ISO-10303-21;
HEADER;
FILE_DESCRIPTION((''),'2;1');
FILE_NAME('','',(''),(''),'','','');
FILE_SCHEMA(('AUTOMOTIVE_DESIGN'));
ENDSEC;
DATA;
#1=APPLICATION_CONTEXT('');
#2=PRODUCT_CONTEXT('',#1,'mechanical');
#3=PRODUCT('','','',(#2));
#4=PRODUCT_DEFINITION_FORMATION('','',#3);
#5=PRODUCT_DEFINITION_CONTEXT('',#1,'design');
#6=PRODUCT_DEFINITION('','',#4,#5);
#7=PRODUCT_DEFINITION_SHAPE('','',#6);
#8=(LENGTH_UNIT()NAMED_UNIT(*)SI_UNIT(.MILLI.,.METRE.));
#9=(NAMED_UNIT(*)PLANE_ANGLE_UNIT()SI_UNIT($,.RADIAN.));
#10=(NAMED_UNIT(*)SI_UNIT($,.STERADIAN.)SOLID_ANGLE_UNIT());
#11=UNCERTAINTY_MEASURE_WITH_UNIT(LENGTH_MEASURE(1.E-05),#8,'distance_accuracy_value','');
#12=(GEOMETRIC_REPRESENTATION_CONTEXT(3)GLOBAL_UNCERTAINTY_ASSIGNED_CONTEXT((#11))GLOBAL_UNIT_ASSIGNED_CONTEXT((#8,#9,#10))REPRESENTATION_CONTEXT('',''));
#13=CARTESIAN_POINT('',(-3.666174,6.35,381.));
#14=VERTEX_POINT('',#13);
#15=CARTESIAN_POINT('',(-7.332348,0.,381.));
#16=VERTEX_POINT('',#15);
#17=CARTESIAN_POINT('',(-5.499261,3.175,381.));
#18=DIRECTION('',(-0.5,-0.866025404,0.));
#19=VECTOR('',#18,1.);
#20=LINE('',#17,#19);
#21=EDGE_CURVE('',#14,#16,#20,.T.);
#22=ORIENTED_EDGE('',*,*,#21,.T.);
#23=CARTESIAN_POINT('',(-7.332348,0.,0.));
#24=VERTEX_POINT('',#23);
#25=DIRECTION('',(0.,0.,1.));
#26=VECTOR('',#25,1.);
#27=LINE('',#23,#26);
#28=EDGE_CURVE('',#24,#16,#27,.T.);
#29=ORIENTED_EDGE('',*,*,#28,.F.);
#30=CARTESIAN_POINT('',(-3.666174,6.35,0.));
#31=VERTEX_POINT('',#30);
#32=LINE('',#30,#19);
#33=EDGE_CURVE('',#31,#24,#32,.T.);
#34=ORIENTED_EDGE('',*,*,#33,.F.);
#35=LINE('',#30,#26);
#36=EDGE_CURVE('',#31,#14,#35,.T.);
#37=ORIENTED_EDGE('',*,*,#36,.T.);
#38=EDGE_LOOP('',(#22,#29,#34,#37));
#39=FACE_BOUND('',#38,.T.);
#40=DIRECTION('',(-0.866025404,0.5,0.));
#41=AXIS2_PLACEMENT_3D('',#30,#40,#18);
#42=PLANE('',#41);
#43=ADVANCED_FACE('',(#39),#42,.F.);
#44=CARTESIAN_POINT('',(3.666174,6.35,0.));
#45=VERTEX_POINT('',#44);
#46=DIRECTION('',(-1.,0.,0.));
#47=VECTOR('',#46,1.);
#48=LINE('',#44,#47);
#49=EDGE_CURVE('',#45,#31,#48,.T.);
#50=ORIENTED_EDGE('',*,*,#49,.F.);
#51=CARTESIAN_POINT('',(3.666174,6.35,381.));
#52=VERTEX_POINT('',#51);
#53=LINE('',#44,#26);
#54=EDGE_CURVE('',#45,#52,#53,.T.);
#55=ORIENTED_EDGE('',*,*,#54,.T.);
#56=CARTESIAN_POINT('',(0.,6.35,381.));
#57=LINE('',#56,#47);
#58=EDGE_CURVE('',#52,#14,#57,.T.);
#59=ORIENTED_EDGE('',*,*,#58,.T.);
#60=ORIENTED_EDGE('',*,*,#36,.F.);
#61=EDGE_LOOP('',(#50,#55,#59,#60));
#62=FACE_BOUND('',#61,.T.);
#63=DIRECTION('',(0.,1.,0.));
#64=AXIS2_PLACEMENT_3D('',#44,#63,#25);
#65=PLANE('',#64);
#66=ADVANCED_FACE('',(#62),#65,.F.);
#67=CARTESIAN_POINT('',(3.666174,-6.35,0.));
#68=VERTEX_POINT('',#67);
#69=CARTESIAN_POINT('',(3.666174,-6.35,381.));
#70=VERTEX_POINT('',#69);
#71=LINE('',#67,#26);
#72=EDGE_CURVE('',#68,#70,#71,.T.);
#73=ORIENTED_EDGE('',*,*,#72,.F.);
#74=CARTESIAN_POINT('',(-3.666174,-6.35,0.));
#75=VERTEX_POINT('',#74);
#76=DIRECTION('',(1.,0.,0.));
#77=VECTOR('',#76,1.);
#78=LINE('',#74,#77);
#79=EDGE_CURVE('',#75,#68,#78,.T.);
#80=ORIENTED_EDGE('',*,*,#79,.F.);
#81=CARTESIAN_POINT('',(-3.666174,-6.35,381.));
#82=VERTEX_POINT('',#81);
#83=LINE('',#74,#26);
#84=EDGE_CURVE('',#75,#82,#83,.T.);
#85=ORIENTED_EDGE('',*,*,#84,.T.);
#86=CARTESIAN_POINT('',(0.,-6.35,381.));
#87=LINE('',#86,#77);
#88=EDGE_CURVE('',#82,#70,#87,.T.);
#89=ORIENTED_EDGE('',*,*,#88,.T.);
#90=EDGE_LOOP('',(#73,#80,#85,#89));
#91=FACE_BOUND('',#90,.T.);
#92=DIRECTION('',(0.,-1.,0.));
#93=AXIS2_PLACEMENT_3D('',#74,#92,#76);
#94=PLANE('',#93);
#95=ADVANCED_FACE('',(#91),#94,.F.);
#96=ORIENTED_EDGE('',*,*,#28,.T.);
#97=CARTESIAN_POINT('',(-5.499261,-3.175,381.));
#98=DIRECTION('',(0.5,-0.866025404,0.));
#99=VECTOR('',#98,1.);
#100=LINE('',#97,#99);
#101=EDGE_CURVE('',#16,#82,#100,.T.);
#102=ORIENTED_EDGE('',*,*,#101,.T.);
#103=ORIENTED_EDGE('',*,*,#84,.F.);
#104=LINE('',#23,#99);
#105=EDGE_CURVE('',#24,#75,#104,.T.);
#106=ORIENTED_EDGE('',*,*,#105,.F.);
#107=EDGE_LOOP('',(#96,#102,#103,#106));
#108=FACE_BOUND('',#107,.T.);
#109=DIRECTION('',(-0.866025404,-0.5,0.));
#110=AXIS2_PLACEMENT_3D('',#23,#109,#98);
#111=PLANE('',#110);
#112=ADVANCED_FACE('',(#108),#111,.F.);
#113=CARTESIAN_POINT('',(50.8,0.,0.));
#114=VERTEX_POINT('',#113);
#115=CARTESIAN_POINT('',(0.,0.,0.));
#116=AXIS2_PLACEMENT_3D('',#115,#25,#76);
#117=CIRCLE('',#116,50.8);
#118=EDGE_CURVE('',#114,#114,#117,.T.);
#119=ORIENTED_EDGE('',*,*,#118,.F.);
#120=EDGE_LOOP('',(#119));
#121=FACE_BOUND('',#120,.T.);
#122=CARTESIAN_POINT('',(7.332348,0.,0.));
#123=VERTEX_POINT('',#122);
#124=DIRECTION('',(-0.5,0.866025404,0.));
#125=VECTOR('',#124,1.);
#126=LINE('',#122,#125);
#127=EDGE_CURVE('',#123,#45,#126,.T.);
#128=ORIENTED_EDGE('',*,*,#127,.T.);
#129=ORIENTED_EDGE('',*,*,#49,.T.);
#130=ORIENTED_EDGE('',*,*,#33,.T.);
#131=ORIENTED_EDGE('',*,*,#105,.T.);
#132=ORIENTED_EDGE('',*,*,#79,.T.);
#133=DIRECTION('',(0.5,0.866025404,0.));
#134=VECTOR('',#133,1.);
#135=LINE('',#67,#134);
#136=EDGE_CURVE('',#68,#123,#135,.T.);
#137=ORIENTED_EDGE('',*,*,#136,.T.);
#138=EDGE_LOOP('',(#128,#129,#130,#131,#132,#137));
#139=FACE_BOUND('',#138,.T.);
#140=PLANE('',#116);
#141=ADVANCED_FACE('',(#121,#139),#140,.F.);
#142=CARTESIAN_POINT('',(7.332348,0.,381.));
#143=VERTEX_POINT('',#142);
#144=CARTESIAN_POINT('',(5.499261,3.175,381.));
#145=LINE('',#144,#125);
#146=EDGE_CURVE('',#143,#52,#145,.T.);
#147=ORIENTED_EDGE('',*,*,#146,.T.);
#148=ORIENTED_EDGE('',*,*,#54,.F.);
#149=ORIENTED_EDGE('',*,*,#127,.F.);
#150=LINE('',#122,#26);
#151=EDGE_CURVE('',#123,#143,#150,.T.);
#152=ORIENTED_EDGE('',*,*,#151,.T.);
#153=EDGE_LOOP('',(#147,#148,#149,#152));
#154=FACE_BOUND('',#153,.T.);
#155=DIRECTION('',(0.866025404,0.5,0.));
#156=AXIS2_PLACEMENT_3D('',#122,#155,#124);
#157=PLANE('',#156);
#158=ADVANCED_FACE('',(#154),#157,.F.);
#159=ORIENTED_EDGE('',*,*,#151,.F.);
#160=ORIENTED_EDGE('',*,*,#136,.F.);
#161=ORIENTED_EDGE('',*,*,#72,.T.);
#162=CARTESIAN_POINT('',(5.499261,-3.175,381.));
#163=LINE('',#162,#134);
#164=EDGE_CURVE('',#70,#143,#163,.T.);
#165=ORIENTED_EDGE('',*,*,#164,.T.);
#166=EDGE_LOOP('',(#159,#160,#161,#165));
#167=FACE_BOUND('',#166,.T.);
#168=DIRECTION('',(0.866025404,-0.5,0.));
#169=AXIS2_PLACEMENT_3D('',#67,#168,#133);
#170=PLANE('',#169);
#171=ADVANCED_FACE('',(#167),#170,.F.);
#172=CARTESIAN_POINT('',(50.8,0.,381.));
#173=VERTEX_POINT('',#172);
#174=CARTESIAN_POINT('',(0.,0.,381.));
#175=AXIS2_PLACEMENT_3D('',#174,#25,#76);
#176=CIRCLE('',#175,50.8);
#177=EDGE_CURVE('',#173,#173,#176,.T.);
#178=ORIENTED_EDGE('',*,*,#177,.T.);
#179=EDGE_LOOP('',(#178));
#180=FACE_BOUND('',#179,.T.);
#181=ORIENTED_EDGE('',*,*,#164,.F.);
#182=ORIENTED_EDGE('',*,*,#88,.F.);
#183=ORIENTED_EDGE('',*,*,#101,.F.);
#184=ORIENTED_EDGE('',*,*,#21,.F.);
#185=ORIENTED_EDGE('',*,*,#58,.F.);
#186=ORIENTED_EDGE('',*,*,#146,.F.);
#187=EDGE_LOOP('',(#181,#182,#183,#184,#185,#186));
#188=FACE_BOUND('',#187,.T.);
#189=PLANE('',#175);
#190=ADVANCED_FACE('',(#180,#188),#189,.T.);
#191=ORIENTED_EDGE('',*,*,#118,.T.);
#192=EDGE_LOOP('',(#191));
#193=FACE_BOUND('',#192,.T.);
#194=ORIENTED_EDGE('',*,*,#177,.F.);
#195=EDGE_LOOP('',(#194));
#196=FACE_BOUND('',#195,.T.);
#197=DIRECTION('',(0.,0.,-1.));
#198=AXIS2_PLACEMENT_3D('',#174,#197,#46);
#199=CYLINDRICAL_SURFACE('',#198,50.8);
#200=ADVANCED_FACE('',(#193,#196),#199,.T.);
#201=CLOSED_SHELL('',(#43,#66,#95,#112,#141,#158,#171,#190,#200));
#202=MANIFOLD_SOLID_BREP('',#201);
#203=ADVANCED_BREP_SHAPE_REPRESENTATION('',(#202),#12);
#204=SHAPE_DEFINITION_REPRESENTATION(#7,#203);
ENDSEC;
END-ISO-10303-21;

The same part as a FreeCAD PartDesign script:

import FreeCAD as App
import Part
import Sketcher
Q = App.Units.Quantity

doc = App.newDocument("Part")
body = doc.addObject("PartDesign::Body", "Body")

sketch1 = body.newObject("Sketcher::SketchObject", "Sketch")
sketch1.AttachmentSupport = (doc.getObject("XY_Plane"), [""])
sketch1.MapMode = "FlatFace"
sketch1.addGeometry(Part.Circle(App.Vector(0, 0, 0), App.Vector(0, 0, 1), 51), False)
sketch1.addConstraint([
    Sketcher.Constraint("Coincident", 0, 3, -1, 1),
    Sketcher.Constraint("Diameter", 0, Q("4 in")),
])
pad1 = body.newObject("PartDesign::Pad", "Pad")
pad1.Profile = sketch1
pad1.Length = Q("15 in")

sketch2 = body.newObject("Sketcher::SketchObject", "Sketch001")
sketch2.AttachmentSupport = (doc.getObject("XY_Plane"), [""])
sketch2.MapMode = "FlatFace"
sketch2.AttachmentOffset = App.Placement(App.Vector(0, 0, 15 * 25.4), App.Rotation())
sketch2.addGeometry([
    Part.LineSegment(App.Vector(4, 6, 0), App.Vector(-4, 6, 0)),
    Part.LineSegment(App.Vector(-4, 6, 0), App.Vector(-7, 0, 0)),
    Part.LineSegment(App.Vector(-7, 0, 0), App.Vector(-4, -6, 0)),
    Part.LineSegment(App.Vector(-4, -6, 0), App.Vector(4, -6, 0)),
    Part.LineSegment(App.Vector(4, -6, 0), App.Vector(7, 0, 0)),
    Part.LineSegment(App.Vector(7, 0, 0), App.Vector(4, 6, 0)),
], False)
sketch2.addConstraint([
    Sketcher.Constraint("Coincident", 0, 2, 1, 1),
    Sketcher.Constraint("Coincident", 1, 2, 2, 1),
    Sketcher.Constraint("Coincident", 2, 2, 3, 1),
    Sketcher.Constraint("Coincident", 3, 2, 4, 1),
    Sketcher.Constraint("Coincident", 4, 2, 5, 1),
    Sketcher.Constraint("Coincident", 5, 2, 0, 1),
    Sketcher.Constraint("Horizontal", 0),
    Sketcher.Constraint("Horizontal", 3),
    Sketcher.Constraint("Symmetric", 0, 2, 3, 2, -1, 1),
    Sketcher.Constraint("Symmetric", 1, 2, 4, 2, -1, 1),
    Sketcher.Constraint("PointOnObject", 1, 2, -1),
    Sketcher.Constraint("Parallel", 2, 5),
    Sketcher.Constraint("Vertical", 0, 2, 2, 2),
    Sketcher.Constraint("Angle", 1, Q("-120 deg")),
    Sketcher.Constraint("DistanceY", 2, 2, 0, 2, Q("0.5 in")),
    Sketcher.Constraint("DistanceX", 0, 2, 0, 1, Q("7.332348 mm")),
])
pocket1 = body.newObject("PartDesign::Pocket", "Pocket")
pocket1.Profile = sketch2
pocket1.Type = "ThroughAll"
pocket1.Midplane = True

doc.recompute()
